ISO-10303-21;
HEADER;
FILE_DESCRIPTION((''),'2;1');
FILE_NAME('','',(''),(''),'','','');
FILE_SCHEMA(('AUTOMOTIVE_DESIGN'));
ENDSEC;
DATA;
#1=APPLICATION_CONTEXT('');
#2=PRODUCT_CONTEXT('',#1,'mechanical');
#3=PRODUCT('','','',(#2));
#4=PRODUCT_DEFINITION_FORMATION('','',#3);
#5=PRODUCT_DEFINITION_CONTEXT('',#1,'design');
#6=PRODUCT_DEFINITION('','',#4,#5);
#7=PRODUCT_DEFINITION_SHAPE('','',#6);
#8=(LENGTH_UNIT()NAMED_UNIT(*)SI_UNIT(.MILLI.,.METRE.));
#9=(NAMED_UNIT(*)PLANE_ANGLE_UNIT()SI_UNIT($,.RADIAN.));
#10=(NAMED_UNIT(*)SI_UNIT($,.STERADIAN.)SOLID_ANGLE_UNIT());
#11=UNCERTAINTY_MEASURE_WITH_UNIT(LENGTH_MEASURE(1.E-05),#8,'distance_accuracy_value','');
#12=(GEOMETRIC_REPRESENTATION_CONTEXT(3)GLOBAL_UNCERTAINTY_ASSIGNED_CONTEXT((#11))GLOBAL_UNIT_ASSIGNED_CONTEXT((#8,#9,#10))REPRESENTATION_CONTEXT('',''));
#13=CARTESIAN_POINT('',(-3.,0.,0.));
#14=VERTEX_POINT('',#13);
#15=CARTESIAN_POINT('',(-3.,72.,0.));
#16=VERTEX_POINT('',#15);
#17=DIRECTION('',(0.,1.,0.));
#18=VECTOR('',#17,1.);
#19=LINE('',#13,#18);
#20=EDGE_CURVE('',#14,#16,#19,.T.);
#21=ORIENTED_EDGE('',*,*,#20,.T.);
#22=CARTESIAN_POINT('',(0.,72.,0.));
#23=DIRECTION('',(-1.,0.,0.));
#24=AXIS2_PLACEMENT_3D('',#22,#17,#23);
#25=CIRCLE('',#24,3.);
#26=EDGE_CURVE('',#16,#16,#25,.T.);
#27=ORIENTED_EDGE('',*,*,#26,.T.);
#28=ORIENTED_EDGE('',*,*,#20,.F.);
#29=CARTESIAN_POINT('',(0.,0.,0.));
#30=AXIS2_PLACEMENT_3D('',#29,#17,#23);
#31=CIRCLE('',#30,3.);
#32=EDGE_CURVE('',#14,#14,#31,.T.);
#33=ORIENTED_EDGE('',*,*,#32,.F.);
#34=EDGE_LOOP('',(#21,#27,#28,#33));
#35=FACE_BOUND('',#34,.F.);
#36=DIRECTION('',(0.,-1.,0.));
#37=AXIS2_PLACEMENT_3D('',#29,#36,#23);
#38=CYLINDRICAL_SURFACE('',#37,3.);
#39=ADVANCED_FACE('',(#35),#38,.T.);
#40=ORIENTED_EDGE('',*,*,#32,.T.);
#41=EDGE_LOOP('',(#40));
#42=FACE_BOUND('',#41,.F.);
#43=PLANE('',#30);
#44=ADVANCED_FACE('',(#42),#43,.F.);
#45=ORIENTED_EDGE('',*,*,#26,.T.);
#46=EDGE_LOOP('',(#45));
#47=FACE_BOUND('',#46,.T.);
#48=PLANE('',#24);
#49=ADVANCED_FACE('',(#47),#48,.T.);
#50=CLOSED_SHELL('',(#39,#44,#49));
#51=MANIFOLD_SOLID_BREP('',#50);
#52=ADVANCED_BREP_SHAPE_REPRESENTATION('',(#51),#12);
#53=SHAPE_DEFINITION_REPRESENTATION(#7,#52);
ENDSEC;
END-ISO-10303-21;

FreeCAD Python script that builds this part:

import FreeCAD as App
import Part
import Sketcher

V = App.Vector

doc = App.newDocument("Part")
body = doc.addObject("PartDesign::Body", "Body")

# Sketch on XZ plane
sketch1 = body.newObject("Sketcher::SketchObject", "Sketch")
sketch1.AttachmentSupport = (doc.getObject("XZ_Plane"), [""])
sketch1.MapMode = "FlatFace"
sketch1.addGeometry(Part.Circle(V(0, 0, 0), V(0, 0, 1), 3), False)
sketch1.addConstraint([
    Sketcher.Constraint("Coincident", 0, 3, -1, 1),
    Sketcher.Constraint("Diameter", 0, 6.0),
])
pad1 = body.newObject("PartDesign::Pad", "Pad")
pad1.Profile = sketch1
pad1.Length = 72
pad1.Reversed = True

doc.recompute()
